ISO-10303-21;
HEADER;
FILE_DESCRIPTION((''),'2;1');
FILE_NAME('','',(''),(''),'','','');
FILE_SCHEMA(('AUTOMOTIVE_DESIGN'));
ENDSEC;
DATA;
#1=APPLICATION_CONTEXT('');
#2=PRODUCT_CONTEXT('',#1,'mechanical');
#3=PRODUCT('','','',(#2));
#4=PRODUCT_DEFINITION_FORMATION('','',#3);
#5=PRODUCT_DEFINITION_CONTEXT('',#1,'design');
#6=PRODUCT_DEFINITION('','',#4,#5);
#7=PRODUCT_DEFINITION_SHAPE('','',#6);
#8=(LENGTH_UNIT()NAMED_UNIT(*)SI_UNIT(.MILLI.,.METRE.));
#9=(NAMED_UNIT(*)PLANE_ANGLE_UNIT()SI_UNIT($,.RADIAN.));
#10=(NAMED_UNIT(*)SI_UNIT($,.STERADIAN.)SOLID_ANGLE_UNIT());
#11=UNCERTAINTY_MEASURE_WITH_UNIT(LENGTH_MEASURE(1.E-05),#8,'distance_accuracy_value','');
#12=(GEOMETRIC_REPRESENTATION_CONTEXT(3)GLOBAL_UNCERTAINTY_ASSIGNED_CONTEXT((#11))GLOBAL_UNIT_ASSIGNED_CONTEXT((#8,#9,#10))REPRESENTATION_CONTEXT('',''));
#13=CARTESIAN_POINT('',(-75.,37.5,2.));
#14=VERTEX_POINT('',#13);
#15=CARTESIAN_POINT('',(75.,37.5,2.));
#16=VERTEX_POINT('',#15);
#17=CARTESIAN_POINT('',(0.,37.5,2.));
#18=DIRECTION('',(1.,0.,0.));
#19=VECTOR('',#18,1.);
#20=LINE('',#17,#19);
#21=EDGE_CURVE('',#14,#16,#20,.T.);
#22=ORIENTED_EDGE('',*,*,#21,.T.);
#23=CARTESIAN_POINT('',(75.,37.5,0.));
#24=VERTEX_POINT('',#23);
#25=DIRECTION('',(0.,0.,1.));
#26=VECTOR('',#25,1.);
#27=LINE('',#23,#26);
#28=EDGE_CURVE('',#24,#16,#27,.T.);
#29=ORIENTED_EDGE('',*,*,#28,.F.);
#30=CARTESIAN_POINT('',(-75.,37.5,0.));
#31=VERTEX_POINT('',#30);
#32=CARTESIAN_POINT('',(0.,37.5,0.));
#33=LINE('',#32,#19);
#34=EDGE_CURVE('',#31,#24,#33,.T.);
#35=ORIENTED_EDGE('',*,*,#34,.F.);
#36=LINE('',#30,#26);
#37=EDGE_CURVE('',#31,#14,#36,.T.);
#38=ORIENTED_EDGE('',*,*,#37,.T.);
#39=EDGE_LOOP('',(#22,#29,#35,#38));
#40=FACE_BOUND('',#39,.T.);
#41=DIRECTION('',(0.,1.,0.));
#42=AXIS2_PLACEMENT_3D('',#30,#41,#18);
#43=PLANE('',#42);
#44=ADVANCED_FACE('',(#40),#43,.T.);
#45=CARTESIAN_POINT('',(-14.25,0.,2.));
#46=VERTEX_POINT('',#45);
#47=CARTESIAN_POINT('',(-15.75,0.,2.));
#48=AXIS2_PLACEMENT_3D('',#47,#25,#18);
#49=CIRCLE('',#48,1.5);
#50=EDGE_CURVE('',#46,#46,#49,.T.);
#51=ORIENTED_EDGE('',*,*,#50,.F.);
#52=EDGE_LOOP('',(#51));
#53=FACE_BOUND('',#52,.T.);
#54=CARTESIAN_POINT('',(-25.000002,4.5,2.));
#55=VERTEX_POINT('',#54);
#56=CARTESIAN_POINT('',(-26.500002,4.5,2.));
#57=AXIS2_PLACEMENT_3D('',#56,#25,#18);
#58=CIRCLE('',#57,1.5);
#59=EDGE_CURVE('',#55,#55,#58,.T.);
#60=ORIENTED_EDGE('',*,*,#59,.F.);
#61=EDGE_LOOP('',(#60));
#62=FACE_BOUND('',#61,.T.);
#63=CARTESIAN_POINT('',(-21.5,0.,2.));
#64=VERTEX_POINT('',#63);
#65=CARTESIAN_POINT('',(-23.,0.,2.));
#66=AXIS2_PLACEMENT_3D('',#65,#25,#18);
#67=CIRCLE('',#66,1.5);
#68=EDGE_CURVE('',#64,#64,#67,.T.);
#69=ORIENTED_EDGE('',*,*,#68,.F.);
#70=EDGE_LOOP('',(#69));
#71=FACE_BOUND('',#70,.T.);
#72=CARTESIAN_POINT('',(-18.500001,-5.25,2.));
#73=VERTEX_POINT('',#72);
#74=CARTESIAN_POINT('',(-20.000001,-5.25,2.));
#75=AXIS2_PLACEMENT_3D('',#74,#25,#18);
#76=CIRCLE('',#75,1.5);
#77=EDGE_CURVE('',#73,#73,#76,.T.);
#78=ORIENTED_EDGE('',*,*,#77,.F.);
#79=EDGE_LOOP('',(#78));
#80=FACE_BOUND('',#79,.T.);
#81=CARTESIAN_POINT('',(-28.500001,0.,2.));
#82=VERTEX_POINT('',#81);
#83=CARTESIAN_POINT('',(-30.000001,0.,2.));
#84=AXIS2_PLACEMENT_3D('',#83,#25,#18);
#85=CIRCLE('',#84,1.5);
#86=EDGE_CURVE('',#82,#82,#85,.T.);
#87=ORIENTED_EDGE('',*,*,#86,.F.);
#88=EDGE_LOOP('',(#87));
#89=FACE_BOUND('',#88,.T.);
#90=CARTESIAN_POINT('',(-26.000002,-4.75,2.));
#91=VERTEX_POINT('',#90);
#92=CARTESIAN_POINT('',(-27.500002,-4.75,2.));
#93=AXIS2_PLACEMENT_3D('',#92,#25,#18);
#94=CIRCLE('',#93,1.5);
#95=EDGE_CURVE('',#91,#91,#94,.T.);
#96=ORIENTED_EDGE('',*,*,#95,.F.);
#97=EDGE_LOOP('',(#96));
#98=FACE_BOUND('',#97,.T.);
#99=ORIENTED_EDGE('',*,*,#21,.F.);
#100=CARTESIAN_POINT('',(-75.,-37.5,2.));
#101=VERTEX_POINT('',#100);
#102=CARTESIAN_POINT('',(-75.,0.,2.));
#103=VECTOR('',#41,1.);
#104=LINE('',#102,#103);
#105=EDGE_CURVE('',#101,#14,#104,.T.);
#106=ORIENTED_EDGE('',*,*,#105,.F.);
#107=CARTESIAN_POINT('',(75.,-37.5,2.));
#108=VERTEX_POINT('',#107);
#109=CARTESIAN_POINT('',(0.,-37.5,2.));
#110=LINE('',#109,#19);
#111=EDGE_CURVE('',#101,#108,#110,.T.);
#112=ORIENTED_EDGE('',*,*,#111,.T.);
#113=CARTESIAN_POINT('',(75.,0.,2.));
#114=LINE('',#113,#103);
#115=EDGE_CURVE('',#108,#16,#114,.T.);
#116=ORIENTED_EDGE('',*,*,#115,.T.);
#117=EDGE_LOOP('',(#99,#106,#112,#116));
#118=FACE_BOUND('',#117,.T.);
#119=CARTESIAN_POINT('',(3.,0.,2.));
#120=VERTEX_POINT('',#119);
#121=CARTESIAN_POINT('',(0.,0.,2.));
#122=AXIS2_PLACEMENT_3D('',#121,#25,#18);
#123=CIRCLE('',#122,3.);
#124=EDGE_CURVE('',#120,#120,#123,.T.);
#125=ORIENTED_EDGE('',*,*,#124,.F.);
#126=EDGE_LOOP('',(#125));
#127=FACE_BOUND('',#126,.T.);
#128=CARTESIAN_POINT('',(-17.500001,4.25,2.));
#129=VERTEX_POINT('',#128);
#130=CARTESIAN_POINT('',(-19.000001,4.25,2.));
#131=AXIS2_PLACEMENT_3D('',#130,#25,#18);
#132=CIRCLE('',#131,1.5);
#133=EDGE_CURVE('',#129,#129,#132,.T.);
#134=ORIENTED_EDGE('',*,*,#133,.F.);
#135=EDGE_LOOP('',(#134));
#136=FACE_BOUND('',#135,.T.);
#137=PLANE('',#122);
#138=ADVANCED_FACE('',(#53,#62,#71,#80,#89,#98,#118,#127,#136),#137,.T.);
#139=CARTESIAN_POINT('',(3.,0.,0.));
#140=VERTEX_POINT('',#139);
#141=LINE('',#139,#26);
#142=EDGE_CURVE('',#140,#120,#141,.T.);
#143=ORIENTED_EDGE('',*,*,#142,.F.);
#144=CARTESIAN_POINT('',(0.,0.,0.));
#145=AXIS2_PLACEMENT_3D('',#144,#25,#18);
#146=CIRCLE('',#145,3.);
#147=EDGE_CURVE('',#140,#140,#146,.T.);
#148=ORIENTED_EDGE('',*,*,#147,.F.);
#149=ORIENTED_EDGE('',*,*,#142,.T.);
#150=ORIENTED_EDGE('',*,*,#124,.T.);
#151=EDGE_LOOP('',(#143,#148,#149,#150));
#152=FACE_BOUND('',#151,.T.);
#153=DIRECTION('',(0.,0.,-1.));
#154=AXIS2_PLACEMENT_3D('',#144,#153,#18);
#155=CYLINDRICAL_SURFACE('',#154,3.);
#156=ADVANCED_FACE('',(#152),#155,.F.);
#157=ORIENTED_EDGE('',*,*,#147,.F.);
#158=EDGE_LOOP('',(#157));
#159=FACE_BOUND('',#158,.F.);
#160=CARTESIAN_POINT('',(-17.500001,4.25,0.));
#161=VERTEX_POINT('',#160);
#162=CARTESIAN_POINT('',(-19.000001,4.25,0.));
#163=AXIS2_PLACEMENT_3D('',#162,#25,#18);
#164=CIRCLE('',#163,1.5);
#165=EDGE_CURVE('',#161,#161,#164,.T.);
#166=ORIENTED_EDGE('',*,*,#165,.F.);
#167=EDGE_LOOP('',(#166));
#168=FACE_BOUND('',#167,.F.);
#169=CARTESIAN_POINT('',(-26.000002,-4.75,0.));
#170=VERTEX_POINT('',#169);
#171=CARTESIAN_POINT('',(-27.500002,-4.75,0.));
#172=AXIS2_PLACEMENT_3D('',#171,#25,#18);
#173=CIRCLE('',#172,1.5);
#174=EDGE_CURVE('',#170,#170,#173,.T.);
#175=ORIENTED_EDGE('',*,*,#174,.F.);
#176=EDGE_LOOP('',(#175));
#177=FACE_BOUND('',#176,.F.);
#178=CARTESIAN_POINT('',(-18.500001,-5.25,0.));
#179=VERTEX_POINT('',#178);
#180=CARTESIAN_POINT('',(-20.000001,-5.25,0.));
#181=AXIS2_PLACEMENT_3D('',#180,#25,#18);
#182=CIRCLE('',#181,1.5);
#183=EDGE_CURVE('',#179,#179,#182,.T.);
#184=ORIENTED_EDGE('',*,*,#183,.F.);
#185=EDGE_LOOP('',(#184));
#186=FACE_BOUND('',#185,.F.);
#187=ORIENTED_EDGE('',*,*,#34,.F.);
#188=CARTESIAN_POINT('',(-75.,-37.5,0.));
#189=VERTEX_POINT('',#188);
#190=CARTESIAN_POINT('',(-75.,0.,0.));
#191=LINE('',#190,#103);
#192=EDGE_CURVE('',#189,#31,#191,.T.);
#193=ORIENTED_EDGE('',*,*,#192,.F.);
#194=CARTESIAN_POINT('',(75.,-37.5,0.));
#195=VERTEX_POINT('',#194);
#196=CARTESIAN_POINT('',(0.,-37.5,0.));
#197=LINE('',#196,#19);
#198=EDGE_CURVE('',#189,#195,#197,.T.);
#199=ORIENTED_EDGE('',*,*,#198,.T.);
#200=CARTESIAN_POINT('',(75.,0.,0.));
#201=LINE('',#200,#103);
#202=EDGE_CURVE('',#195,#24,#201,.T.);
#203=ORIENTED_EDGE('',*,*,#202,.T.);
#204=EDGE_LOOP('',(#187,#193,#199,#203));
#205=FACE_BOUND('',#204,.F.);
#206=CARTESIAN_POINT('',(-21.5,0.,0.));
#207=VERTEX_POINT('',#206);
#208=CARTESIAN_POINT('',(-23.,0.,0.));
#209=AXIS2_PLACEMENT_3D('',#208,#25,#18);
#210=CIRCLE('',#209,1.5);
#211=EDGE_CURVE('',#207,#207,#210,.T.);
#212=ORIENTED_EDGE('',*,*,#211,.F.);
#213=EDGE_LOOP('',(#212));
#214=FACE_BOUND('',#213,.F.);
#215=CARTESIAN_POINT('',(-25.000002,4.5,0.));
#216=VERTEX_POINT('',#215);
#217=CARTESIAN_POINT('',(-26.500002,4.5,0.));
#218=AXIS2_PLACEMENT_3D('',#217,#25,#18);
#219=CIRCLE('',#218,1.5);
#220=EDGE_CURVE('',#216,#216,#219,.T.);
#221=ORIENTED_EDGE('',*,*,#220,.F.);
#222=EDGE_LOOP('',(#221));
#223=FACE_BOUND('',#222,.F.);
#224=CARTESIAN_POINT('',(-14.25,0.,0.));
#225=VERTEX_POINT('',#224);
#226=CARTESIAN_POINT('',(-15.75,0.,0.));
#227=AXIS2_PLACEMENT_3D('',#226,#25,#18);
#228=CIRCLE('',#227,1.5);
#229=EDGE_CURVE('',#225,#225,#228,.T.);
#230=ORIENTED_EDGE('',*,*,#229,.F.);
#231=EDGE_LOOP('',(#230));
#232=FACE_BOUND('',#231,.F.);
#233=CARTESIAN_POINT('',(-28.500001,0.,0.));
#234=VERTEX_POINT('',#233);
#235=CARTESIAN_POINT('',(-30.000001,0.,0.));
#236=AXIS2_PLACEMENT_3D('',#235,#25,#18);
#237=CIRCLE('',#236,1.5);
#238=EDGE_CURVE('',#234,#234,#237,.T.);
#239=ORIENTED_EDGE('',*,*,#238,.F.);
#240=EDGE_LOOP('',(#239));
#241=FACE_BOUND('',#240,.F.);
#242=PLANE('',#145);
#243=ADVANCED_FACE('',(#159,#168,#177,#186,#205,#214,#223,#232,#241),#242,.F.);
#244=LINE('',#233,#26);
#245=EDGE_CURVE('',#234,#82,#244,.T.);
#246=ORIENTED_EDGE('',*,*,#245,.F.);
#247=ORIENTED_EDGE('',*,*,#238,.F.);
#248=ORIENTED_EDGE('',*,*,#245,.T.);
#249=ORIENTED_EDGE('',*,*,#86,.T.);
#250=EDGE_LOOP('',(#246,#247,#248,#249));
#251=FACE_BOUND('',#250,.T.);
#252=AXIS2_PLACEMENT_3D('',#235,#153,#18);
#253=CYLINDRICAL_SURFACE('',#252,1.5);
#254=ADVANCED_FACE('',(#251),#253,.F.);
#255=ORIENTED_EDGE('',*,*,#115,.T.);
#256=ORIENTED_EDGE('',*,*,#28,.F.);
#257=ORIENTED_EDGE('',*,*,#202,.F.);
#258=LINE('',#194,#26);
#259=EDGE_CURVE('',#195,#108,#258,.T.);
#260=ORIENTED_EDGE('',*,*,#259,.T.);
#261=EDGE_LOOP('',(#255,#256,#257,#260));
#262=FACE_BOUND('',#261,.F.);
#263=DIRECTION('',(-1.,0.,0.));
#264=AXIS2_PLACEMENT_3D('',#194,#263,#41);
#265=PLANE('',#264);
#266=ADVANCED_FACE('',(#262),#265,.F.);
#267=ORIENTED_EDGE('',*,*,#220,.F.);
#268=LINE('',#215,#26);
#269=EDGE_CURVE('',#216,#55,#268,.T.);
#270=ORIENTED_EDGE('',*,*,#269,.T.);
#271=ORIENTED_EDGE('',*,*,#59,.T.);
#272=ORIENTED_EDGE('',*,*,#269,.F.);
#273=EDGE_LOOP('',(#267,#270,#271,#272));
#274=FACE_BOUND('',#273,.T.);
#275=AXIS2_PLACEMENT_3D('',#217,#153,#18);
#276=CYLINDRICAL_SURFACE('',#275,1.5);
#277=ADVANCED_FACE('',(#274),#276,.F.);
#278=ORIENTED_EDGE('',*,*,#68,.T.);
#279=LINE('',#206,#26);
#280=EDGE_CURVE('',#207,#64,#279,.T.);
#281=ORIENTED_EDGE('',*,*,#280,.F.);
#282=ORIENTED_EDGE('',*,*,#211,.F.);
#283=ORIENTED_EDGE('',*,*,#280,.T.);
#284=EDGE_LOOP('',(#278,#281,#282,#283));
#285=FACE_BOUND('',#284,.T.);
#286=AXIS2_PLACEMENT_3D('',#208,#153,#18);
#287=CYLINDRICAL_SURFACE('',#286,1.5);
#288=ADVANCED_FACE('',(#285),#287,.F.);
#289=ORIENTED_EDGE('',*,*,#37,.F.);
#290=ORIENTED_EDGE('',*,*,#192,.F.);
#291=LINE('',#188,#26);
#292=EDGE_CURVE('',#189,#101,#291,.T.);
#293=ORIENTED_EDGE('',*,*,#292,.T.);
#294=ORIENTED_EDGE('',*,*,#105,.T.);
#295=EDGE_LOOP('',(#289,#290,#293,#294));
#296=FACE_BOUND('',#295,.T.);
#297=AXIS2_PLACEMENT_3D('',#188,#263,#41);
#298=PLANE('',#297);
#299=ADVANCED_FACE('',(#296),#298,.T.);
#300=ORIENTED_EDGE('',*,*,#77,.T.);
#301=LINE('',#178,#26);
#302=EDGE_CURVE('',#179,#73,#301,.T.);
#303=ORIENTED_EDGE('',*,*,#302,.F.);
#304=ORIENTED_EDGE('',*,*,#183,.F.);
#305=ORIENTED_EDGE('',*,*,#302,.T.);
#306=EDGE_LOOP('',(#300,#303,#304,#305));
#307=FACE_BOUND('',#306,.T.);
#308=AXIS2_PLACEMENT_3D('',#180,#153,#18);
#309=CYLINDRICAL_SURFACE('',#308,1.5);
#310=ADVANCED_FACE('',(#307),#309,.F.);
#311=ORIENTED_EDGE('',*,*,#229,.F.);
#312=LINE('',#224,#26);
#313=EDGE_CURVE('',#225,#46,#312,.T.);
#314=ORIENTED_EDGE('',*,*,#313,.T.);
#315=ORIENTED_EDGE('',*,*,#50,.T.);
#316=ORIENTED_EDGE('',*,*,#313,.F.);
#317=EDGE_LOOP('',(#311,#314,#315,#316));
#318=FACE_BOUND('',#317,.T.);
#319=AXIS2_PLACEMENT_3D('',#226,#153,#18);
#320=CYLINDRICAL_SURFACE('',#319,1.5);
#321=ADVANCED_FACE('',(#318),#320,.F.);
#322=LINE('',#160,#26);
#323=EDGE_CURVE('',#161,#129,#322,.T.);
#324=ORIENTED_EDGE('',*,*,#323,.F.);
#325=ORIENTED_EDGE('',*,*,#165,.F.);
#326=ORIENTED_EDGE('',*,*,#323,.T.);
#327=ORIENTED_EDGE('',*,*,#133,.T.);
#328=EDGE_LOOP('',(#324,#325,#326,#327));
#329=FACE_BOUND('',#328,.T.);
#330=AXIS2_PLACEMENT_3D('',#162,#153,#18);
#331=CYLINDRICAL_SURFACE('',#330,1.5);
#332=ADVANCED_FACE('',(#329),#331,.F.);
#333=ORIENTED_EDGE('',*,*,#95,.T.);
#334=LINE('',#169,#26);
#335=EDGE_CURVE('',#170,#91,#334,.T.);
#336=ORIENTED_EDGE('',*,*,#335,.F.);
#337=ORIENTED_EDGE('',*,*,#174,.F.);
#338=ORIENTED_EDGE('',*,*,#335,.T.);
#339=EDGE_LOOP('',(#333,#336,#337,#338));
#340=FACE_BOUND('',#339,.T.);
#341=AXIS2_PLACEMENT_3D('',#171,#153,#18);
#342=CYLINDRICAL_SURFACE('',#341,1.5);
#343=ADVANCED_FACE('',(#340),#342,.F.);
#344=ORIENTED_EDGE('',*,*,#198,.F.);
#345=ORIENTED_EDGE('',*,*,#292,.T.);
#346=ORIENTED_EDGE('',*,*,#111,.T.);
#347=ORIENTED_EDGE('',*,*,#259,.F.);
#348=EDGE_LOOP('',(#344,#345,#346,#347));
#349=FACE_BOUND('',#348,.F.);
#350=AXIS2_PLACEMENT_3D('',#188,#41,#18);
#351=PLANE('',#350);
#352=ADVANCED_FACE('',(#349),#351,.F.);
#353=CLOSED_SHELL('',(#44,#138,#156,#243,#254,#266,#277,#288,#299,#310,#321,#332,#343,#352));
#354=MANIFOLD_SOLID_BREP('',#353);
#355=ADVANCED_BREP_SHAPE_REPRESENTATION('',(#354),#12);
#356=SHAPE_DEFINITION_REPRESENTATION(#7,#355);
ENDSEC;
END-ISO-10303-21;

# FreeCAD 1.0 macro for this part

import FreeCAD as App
import Part
import Sketcher
from FreeCAD import Vector

doc = App.newDocument("Part")
body = doc.addObject("PartDesign::Body", "Body")

# Sketch on XY plane
sketch1 = body.newObject("Sketcher::SketchObject", "Sketch")
sketch1.AttachmentSupport = (doc.getObject("XY_Plane"), [""])
sketch1.MapMode = "FlatFace"
sketch1.addGeometry([
    Part.LineSegment(Vector(-75, 37.5, 0), Vector(-75, -37.5, 0)),  # 0
    Part.LineSegment(Vector(-75, -37.5, 0), Vector(75, -37.5, 0)),  # 1
    Part.LineSegment(Vector(75, -37.5, 0), Vector(75, 37.5, 0)),  # 2
    Part.LineSegment(Vector(75, 37.5, 0), Vector(-75, 37.5, 0)),  # 3
    Part.Circle(Vector(-27.5, -4.8, 0), Vector(0, 0, 1), 1.5),  # 4
    Part.Circle(Vector(-20, -5.2, 0), Vector(0, 0, 1), 1.5),  # 5
    Part.Circle(Vector(-30, 0, 0), Vector(0, 0, 1), 1.5),  # 6
    Part.Circle(Vector(-23, 0, 0), Vector(0, 0, 1), 1.5),  # 7
    Part.Circle(Vector(-15.8, 0, 0), Vector(0, 0, 1), 1.5),  # 8
    Part.Circle(Vector(-26.5, 4.5, 0), Vector(0, 0, 1), 1.5),  # 9
    Part.Circle(Vector(-19, 4.2, 0), Vector(0, 0, 1), 1.5),  # 10
    Part.Circle(Vector(0, 0, 0), Vector(0, 0, 1), 3),  # 11
], False)
sketch1.addConstraint([
    Sketcher.Constraint("Coincident", 0, 2, 1, 1),
    Sketcher.Constraint("Coincident", 1, 2, 2, 1),
    Sketcher.Constraint("Coincident", 2, 2, 3, 1),
    Sketcher.Constraint("Coincident", 3, 2, 0, 1),
    Sketcher.Constraint("Vertical", 0),
    Sketcher.Constraint("Horizontal", 1),
    Sketcher.Constraint("Vertical", 2),
    Sketcher.Constraint("Horizontal", 3),
    Sketcher.Constraint("Coincident", 11, 3, -1, 1),
    Sketcher.Constraint("Equal", 4, 5),
    Sketcher.Constraint("Equal", 5, 6),
    Sketcher.Constraint("Equal", 6, 7),
    Sketcher.Constraint("Equal", 7, 8),
    Sketcher.Constraint("Equal", 8, 9),
    Sketcher.Constraint("Equal", 9, 10),
    Sketcher.Constraint("Symmetric", 0, 2, 2, 2, -1, 1),
    Sketcher.Constraint("PointOnObject", 6, 3, -1),
    Sketcher.Constraint("PointOnObject", 7, 3, -1),
    Sketcher.Constraint("PointOnObject", 8, 3, -1),
    Sketcher.Constraint("Diameter", 4, 3.0),
    Sketcher.Constraint("Diameter", 11, 6.0),
    Sketcher.Constraint("DistanceX", 1, 1, 1, 2, 150.0),
    Sketcher.Constraint("DistanceY", 0, 2, 0, 1, 75.0),
    Sketcher.Constraint("DistanceX", 5, 3, -1, 1, 20.000001),
    Sketcher.Constraint("DistanceX", 6, 3, -1, 1, 30.000001),
    Sketcher.Constraint("DistanceX", 7, 3, -1, 1, 23.0),
    Sketcher.Constraint("DistanceX", 10, 3, -1, 1, 19.000001),
    Sketcher.Constraint("DistanceX", 4, 3, 9, 3, 1.0),
    Sketcher.Constraint("DistanceY", 0, 2, 9, 3, 42.0),
    Sketcher.Constraint("DistanceX", 4, 3, -1, 1, 27.500002),
    Sketcher.Constraint("DistanceY", 5, 3, 4, 3, 0.5),
    Sketcher.Constraint("DistanceY", 5, 3, 10, 3, 9.5),
    Sketcher.Constraint("DistanceY", 4, 3, -1, 1, 4.75),
    Sketcher.Constraint("DistanceX", 8, 3, -1, 1, 15.75),
])
pad1 = body.newObject("PartDesign::Pad", "Pad")
pad1.Profile = sketch1
pad1.Length = 2

doc.recompute()
